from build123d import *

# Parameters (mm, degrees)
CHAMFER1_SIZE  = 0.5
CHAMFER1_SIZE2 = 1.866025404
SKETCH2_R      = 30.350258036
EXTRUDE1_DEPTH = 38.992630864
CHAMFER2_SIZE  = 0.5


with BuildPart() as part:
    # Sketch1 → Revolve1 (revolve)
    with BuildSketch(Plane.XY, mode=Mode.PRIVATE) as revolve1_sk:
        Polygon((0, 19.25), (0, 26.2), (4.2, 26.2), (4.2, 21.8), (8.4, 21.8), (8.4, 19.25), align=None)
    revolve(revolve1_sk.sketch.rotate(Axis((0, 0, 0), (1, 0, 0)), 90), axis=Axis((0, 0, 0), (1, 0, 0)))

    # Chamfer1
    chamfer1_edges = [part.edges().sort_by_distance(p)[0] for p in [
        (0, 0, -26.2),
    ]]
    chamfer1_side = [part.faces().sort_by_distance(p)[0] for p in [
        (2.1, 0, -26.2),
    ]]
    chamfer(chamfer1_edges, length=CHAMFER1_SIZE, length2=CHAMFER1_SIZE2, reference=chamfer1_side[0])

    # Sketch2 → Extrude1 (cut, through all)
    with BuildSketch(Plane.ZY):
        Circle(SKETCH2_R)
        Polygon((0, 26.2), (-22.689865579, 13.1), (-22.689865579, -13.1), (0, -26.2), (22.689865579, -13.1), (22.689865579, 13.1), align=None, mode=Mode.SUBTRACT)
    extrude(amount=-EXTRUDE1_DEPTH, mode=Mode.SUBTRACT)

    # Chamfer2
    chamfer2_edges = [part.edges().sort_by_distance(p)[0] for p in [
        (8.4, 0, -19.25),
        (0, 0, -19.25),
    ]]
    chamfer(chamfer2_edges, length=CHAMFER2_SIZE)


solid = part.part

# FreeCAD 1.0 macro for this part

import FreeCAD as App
import Part
import Sketcher
Q = App.Units.Quantity


def edges_at(feature, points):
    """Names of the edges that pass closest to the given points."""
    edges = feature.Shape.Edges
    near = lambda p: min(range(len(edges)), key=lambda i: edges[i].distToShape(Part.Vertex(*p))[0])
    return sorted({f"Edge{near(p) + 1}" for p in points})


def add_polygon(sketch, points):
    """Adds a closed chain of lines whose ends are joined by coincident constraints."""
    first, n = sketch.GeometryCount, len(points)
    for a, b in zip(points, points[1:] + points[:1]):
        sketch.addGeometry(Part.LineSegment(App.Vector(*a, 0), App.Vector(*b, 0)), False)
    for i in range(n):
        sketch.addConstraint(Sketcher.Constraint("Coincident", first + i, 2, first + (i + 1) % n, 1))

doc = App.newDocument("Part")
body = doc.addObject("PartDesign::Body", "Body")

# Sketch on XY plane
sketch1 = doc.addObject("Sketcher::SketchObject", "Sketch")
body.addObject(sketch1)
sketch1.AttachmentSupport = (doc.XY_Plane, [""])
sketch1.MapMode = "FlatFace"
add_polygon(sketch1, [(0, 26.2), (0, 19.25), (8.4, 19.25), (8.4, 21.8), (4.2, 21.8), (4.2, 26.2)])  # lines 0-5
sketch1.addConstraint([
    Sketcher.Constraint("Vertical", 0),
    Sketcher.Constraint("Horizontal", 1),
    Sketcher.Constraint("Vertical", 2),
    Sketcher.Constraint("Horizontal", 3),
    Sketcher.Constraint("Vertical", 4),
    Sketcher.Constraint("Horizontal", 5),
    Sketcher.Constraint("PointOnObject", 0, 2, -2),
    Sketcher.Constraint("Equal", 3, 5),
    Sketcher.Constraint("DistanceX", 1, 1, 1, 2, 8.4),
    Sketcher.Constraint("DistanceY", 4, 1, 4, 2, 4.4),
    Sketcher.Constraint("DistanceY", 0, 2, 0, 1, 6.95),
    Sketcher.Constraint("DistanceY", -1, 1, 2, 2, 21.8),
])
revolution = doc.addObject("PartDesign::Revolution", "Revolution")
body.addObject(revolution)
revolution.Profile = sketch1
revolution.ReferenceAxis = (sketch1, ["H_Axis"])
revolution.Angle = 360
doc.recompute()

chamfer = doc.addObject("PartDesign::Chamfer", "Chamfer")
body.addObject(chamfer)
chamfer.Base = (revolution, edges_at(revolution, [(0, 0, -26.2)]))
chamfer.ChamferType = "Two distances"
chamfer.Size = 0.5
chamfer.Size2 = 1.866025
chamfer.FlipDirection = True

# Sketch on YZ plane
sketch2 = doc.addObject("Sketcher::SketchObject", "Sketch001")
body.addObject(sketch2)
sketch2.AttachmentSupport = (doc.YZ_Plane, [""])
sketch2.MapMode = "FlatFace"
sketch2.addGeometry(Part.Circle(App.Vector(0, 0, 0), App.Vector(0, 0, 1), 30.350258), False)  # 0
add_polygon(sketch2, [(13.1, -22.689866), (26.2, 0), (13.1, 22.689866), (-13.1, 22.689866), (-26.2, 0), (-13.1, -22.689866)])  # lines 1-6
sketch2.addConstraint([
    Sketcher.Constraint("Horizontal", 3),
    Sketcher.Constraint("Horizontal", 6),
    Sketcher.Constraint("Coincident", 0, 3, -1, 1),
    Sketcher.Constraint("Symmetric", 1, 2, 4, 2, -1, 1),
    Sketcher.Constraint("Symmetric", 2, 2, 5, 2, -1, 1),
    Sketcher.Constraint("PointOnObject", 1, 2, -1),
    Sketcher.Constraint("Parallel", 1, 4),
    Sketcher.Constraint("Vertical", 3, 2, 5, 2),
    Sketcher.Constraint("Angle", 1, Q("60 deg")),
    Sketcher.Constraint("DistanceX", 3, 2, 3, 1, 26.2),
    Sketcher.Constraint("Distance", 1, 26.2),
    Sketcher.Constraint("Diameter", 0, 60.700516),
])
pocket1 = doc.addObject("PartDesign::Pocket", "Pocket")
body.addObject(pocket1)
pocket1.Profile = sketch2
pocket1.Type = "ThroughAll"
pocket1.Reversed = True
doc.recompute()

chamfer2 = doc.addObject("PartDesign::Chamfer", "Chamfer001")
body.addObject(chamfer2)
chamfer2.Base = (pocket1, edges_at(pocket1, [(8.4, 0, -19.25), (0, 0, -19.25)]))
chamfer2.Size = 0.5

doc.recompute()
